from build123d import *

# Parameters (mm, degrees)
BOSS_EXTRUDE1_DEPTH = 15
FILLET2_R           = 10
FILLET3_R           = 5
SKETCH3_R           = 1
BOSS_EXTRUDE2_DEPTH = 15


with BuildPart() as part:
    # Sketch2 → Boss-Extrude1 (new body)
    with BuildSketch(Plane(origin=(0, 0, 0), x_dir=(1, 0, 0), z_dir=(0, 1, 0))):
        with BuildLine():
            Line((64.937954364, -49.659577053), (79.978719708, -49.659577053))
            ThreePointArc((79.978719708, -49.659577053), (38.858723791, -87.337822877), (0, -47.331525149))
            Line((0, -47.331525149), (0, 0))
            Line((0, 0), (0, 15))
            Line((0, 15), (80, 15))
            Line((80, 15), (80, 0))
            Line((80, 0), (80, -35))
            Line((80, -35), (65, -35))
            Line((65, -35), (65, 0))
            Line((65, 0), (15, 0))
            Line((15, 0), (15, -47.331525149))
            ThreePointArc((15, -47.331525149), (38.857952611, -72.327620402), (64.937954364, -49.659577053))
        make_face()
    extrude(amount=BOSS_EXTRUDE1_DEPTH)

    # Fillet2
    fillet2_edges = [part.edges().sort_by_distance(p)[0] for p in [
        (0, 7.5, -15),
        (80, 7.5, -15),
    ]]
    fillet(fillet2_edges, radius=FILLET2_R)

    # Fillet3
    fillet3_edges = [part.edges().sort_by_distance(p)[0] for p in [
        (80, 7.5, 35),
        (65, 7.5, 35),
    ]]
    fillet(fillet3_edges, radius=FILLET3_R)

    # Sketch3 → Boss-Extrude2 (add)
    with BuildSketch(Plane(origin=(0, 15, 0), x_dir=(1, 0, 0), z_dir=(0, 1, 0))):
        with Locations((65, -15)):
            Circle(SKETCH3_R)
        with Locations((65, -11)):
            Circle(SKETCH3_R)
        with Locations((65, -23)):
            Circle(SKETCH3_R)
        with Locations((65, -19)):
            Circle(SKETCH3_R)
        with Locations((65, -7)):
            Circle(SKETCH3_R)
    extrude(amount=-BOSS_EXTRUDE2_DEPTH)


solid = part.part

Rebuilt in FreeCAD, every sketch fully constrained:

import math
import FreeCAD as App
import Part
import Sketcher

V = App.Vector


def edges_at(feature, points):
    """Names of the edges that pass closest to the given points."""
    edges = feature.Shape.Edges
    near = lambda p: min(range(len(edges)), key=lambda i: edges[i].distToShape(Part.Vertex(*p))[0])
    return sorted({f"Edge{near(p) + 1}" for p in points})

doc = App.newDocument("Part")
params = doc.addObject("Spreadsheet::Sheet", "Params")
for row, (alias, value) in enumerate([
    ("sketch1_width", "50 mm"),
    ("sketch1_width2", "15 mm"),
    ("sketch1_width3", "80 mm"),
    ("sketch1_height", "35 mm"),
    ("pad1_length", "15 mm"),
    ("fillet_radius", "10 mm"),
    ("fillet2_radius", "5 mm"),
    ("sketch2_diameter", "2 mm"),
    ("pad2_length", "15 mm"),
], start=1):
    params.set(f"A{row}", alias)
    params.set(f"B{row}", "=" + value)
    params.setAlias(f"B{row}", alias)

body = doc.addObject("PartDesign::Body", "Body")

# Sketch on XZ plane
sketch1 = body.newObject("Sketcher::SketchObject", "Sketch")
sketch1.AttachmentSupport = (doc.getObject("XZ_Plane"), [""])
sketch1.MapMode = "FlatFace"
sketch1.addGeometry(Part.LineSegment(V(80, 50, 0), V(65, 50, 0)), False)
sketch1.addGeometry(Part.ArcOfCircle(Part.Circle(V(40, 47, 0), V(0, 0, 1), 25), math.radians(5), math.radians(180)), False)
sketch1.addGeometry(Part.LineSegment(V(15, 47, 0), V(15, 0, 0)), False)
sketch1.addGeometry(Part.LineSegment(V(15, 0, 0), V(65, 0, 0)), False)
sketch1.addGeometry(Part.LineSegment(V(65, 0, 0), V(65, 35, 0)), False)
sketch1.addGeometry(Part.LineSegment(V(65, 35, 0), V(80, 35, 0)), False)
sketch1.addGeometry(Part.LineSegment(V(80, 35, 0), V(80, -15, 0)), False)
sketch1.addGeometry(Part.LineSegment(V(80, -15, 0), V(0, -15, 0)), False)
sketch1.addGeometry(Part.LineSegment(V(0, -15, 0), V(0, 47, 0)), False)
sketch1.addGeometry(Part.ArcOfCircle(Part.Circle(V(40, 47, 0), V(0, 0, 1), 40), math.radians(3), math.radians(180)), False)
sketch1.addConstraint(Sketcher.Constraint("Coincident", 0, 2, 1, 1))
sketch1.addConstraint(Sketcher.Constraint("Tangent", 1, 2, 2, 1))
sketch1.addConstraint(Sketcher.Constraint("Coincident", 2, 2, 3, 1))
sketch1.addConstraint(Sketcher.Constraint("Coincident", 3, 2, 4, 1))
sketch1.addConstraint(Sketcher.Constraint("Coincident", 4, 2, 5, 1))
sketch1.addConstraint(Sketcher.Constraint("Coincident", 5, 2, 6, 1))
sketch1.addConstraint(Sketcher.Constraint("Coincident", 6, 2, 7, 1))
sketch1.addConstraint(Sketcher.Constraint("Coincident", 7, 2, 8, 1))
sketch1.addConstraint(Sketcher.Constraint("Tangent", 8, 2, 9, 2))
sketch1.addConstraint(Sketcher.Constraint("Coincident", 9, 1, 0, 1))
sketch1.addConstraint(Sketcher.Constraint("Horizontal", 0))
sketch1.addConstraint(Sketcher.Constraint("Vertical", 2))
sketch1.addConstraint(Sketcher.Constraint("Horizontal", 3))
sketch1.addConstraint(Sketcher.Constraint("Vertical", 4))
sketch1.addConstraint(Sketcher.Constraint("Horizontal", 5))
sketch1.addConstraint(Sketcher.Constraint("Vertical", 6))
sketch1.addConstraint(Sketcher.Constraint("Horizontal", 7))
sketch1.addConstraint(Sketcher.Constraint("Vertical", 8))
sketch1.addConstraint(Sketcher.Constraint("Coincident", 9, 3, 1, 3))
sketch1.addConstraint(Sketcher.Constraint("PointOnObject", 2, 2, -1))
sketch1.addConstraint(Sketcher.Constraint("PointOnObject", 7, 2, -2))
sketch1.addConstraint(Sketcher.Constraint("Equal", 3, 6))
sketch1.addConstraint(Sketcher.Constraint("DistanceX", 3, 1, 3, 2, 50.0))
sketch1.addConstraint(Sketcher.Constraint("DistanceX", 5, 1, 5, 2, 15.0))
sketch1.addConstraint(Sketcher.Constraint("DistanceX", 7, 2, 7, 1, 80.0))
sketch1.addConstraint(Sketcher.Constraint("DistanceY", 4, 1, 4, 2, 35.0))
sketch1.addConstraint(Sketcher.Constraint("Radius", 1, 25.023243))
sketch1.addConstraint(Sketcher.Constraint("DistanceX", 0, 2, 0, 1, 15.040765))
sketch1.addConstraint(Sketcher.Constraint("DistanceY", 2, 2, 2, 1, 47.331525))
sketch1.setExpression("Constraints[22]", "Params.sketch1_width")
sketch1.setExpression("Constraints[23]", "Params.sketch1_width2")
sketch1.setExpression("Constraints[24]", "Params.sketch1_width3")
sketch1.setExpression("Constraints[25]", "Params.sketch1_height")
pad1 = body.newObject("PartDesign::Pad", "Pad")
pad1.Profile = sketch1
pad1.setExpression("Length", "Params.pad1_length")
pad1.Reversed = True
doc.recompute()

fillet = body.newObject("PartDesign::Fillet", "Fillet")
fillet.Base = (pad1, edges_at(pad1, [(0, 7.5, -15), (80, 7.5, -15)]))
fillet.setExpression("Radius", "Params.fillet_radius")
doc.recompute()

fillet2 = body.newObject("PartDesign::Fillet", "Fillet001")
fillet2.Base = (fillet, edges_at(fillet, [(80, 7.5, 35), (65, 7.5, 35)]))
fillet2.setExpression("Radius", "Params.fillet2_radius")

# Sketch on XZ plane
sketch2 = body.newObject("Sketcher::SketchObject", "Sketch001")
sketch2.AttachmentSupport = (doc.getObject("XZ_Plane"), [""])
sketch2.MapMode = "FlatFace"
sketch2.AttachmentOffset = App.Placement(V(0, 0, -15), App.Rotation())
sketch2.addGeometry(Part.Circle(V(65, 15, 0), V(0, 0, 1), 1), False)
sketch2.addGeometry(Part.Circle(V(65, 11, 0), V(0, 0, 1), 1), False)
sketch2.addGeometry(Part.Circle(V(65, 23, 0), V(0, 0, 1), 1), False)
sketch2.addGeometry(Part.Circle(V(65, 19, 0), V(0, 0, 1), 1), False)
sketch2.addGeometry(Part.Circle(V(65, 7, 0), V(0, 0, 1), 1), False)
sketch2.addConstraint(Sketcher.Constraint("Equal", 0, 1))
sketch2.addConstraint(Sketcher.Constraint("Equal", 1, 2))
sketch2.addConstraint(Sketcher.Constraint("Equal", 2, 3))
sketch2.addConstraint(Sketcher.Constraint("Equal", 3, 4))
sketch2.addConstraint(Sketcher.Constraint("Vertical", 0, 3, 1, 3))
sketch2.addConstraint(Sketcher.Constraint("Vertical", 1, 3, 2, 3))
sketch2.addConstraint(Sketcher.Constraint("Vertical", 2, 3, 3, 3))
sketch2.addConstraint(Sketcher.Constraint("Vertical", 3, 3, 4, 3))
sketch2.addConstraint(Sketcher.Constraint("Diameter", 0, 2.0))
sketch2.addConstraint(Sketcher.Constraint("DistanceX", -1, 1, 0, 3, 65.0))
sketch2.addConstraint(Sketcher.Constraint("DistanceY", -1, 1, 0, 3, 15.0))
sketch2.addConstraint(Sketcher.Constraint("DistanceY", -1, 1, 1, 3, 11.0))
sketch2.addConstraint(Sketcher.Constraint("DistanceY", -1, 1, 2, 3, 23.0))
sketch2.addConstraint(Sketcher.Constraint("DistanceY", -1, 1, 3, 3, 19.0))
sketch2.addConstraint(Sketcher.Constraint("DistanceY", -1, 1, 4, 3, 7.0))
sketch2.setExpression("Constraints[8]", "Params.sketch2_diameter")
pad2 = body.newObject("PartDesign::Pad", "Pad001")
pad2.Profile = sketch2
pad2.setExpression("Length", "Params.pad2_length")

doc.recompute()
